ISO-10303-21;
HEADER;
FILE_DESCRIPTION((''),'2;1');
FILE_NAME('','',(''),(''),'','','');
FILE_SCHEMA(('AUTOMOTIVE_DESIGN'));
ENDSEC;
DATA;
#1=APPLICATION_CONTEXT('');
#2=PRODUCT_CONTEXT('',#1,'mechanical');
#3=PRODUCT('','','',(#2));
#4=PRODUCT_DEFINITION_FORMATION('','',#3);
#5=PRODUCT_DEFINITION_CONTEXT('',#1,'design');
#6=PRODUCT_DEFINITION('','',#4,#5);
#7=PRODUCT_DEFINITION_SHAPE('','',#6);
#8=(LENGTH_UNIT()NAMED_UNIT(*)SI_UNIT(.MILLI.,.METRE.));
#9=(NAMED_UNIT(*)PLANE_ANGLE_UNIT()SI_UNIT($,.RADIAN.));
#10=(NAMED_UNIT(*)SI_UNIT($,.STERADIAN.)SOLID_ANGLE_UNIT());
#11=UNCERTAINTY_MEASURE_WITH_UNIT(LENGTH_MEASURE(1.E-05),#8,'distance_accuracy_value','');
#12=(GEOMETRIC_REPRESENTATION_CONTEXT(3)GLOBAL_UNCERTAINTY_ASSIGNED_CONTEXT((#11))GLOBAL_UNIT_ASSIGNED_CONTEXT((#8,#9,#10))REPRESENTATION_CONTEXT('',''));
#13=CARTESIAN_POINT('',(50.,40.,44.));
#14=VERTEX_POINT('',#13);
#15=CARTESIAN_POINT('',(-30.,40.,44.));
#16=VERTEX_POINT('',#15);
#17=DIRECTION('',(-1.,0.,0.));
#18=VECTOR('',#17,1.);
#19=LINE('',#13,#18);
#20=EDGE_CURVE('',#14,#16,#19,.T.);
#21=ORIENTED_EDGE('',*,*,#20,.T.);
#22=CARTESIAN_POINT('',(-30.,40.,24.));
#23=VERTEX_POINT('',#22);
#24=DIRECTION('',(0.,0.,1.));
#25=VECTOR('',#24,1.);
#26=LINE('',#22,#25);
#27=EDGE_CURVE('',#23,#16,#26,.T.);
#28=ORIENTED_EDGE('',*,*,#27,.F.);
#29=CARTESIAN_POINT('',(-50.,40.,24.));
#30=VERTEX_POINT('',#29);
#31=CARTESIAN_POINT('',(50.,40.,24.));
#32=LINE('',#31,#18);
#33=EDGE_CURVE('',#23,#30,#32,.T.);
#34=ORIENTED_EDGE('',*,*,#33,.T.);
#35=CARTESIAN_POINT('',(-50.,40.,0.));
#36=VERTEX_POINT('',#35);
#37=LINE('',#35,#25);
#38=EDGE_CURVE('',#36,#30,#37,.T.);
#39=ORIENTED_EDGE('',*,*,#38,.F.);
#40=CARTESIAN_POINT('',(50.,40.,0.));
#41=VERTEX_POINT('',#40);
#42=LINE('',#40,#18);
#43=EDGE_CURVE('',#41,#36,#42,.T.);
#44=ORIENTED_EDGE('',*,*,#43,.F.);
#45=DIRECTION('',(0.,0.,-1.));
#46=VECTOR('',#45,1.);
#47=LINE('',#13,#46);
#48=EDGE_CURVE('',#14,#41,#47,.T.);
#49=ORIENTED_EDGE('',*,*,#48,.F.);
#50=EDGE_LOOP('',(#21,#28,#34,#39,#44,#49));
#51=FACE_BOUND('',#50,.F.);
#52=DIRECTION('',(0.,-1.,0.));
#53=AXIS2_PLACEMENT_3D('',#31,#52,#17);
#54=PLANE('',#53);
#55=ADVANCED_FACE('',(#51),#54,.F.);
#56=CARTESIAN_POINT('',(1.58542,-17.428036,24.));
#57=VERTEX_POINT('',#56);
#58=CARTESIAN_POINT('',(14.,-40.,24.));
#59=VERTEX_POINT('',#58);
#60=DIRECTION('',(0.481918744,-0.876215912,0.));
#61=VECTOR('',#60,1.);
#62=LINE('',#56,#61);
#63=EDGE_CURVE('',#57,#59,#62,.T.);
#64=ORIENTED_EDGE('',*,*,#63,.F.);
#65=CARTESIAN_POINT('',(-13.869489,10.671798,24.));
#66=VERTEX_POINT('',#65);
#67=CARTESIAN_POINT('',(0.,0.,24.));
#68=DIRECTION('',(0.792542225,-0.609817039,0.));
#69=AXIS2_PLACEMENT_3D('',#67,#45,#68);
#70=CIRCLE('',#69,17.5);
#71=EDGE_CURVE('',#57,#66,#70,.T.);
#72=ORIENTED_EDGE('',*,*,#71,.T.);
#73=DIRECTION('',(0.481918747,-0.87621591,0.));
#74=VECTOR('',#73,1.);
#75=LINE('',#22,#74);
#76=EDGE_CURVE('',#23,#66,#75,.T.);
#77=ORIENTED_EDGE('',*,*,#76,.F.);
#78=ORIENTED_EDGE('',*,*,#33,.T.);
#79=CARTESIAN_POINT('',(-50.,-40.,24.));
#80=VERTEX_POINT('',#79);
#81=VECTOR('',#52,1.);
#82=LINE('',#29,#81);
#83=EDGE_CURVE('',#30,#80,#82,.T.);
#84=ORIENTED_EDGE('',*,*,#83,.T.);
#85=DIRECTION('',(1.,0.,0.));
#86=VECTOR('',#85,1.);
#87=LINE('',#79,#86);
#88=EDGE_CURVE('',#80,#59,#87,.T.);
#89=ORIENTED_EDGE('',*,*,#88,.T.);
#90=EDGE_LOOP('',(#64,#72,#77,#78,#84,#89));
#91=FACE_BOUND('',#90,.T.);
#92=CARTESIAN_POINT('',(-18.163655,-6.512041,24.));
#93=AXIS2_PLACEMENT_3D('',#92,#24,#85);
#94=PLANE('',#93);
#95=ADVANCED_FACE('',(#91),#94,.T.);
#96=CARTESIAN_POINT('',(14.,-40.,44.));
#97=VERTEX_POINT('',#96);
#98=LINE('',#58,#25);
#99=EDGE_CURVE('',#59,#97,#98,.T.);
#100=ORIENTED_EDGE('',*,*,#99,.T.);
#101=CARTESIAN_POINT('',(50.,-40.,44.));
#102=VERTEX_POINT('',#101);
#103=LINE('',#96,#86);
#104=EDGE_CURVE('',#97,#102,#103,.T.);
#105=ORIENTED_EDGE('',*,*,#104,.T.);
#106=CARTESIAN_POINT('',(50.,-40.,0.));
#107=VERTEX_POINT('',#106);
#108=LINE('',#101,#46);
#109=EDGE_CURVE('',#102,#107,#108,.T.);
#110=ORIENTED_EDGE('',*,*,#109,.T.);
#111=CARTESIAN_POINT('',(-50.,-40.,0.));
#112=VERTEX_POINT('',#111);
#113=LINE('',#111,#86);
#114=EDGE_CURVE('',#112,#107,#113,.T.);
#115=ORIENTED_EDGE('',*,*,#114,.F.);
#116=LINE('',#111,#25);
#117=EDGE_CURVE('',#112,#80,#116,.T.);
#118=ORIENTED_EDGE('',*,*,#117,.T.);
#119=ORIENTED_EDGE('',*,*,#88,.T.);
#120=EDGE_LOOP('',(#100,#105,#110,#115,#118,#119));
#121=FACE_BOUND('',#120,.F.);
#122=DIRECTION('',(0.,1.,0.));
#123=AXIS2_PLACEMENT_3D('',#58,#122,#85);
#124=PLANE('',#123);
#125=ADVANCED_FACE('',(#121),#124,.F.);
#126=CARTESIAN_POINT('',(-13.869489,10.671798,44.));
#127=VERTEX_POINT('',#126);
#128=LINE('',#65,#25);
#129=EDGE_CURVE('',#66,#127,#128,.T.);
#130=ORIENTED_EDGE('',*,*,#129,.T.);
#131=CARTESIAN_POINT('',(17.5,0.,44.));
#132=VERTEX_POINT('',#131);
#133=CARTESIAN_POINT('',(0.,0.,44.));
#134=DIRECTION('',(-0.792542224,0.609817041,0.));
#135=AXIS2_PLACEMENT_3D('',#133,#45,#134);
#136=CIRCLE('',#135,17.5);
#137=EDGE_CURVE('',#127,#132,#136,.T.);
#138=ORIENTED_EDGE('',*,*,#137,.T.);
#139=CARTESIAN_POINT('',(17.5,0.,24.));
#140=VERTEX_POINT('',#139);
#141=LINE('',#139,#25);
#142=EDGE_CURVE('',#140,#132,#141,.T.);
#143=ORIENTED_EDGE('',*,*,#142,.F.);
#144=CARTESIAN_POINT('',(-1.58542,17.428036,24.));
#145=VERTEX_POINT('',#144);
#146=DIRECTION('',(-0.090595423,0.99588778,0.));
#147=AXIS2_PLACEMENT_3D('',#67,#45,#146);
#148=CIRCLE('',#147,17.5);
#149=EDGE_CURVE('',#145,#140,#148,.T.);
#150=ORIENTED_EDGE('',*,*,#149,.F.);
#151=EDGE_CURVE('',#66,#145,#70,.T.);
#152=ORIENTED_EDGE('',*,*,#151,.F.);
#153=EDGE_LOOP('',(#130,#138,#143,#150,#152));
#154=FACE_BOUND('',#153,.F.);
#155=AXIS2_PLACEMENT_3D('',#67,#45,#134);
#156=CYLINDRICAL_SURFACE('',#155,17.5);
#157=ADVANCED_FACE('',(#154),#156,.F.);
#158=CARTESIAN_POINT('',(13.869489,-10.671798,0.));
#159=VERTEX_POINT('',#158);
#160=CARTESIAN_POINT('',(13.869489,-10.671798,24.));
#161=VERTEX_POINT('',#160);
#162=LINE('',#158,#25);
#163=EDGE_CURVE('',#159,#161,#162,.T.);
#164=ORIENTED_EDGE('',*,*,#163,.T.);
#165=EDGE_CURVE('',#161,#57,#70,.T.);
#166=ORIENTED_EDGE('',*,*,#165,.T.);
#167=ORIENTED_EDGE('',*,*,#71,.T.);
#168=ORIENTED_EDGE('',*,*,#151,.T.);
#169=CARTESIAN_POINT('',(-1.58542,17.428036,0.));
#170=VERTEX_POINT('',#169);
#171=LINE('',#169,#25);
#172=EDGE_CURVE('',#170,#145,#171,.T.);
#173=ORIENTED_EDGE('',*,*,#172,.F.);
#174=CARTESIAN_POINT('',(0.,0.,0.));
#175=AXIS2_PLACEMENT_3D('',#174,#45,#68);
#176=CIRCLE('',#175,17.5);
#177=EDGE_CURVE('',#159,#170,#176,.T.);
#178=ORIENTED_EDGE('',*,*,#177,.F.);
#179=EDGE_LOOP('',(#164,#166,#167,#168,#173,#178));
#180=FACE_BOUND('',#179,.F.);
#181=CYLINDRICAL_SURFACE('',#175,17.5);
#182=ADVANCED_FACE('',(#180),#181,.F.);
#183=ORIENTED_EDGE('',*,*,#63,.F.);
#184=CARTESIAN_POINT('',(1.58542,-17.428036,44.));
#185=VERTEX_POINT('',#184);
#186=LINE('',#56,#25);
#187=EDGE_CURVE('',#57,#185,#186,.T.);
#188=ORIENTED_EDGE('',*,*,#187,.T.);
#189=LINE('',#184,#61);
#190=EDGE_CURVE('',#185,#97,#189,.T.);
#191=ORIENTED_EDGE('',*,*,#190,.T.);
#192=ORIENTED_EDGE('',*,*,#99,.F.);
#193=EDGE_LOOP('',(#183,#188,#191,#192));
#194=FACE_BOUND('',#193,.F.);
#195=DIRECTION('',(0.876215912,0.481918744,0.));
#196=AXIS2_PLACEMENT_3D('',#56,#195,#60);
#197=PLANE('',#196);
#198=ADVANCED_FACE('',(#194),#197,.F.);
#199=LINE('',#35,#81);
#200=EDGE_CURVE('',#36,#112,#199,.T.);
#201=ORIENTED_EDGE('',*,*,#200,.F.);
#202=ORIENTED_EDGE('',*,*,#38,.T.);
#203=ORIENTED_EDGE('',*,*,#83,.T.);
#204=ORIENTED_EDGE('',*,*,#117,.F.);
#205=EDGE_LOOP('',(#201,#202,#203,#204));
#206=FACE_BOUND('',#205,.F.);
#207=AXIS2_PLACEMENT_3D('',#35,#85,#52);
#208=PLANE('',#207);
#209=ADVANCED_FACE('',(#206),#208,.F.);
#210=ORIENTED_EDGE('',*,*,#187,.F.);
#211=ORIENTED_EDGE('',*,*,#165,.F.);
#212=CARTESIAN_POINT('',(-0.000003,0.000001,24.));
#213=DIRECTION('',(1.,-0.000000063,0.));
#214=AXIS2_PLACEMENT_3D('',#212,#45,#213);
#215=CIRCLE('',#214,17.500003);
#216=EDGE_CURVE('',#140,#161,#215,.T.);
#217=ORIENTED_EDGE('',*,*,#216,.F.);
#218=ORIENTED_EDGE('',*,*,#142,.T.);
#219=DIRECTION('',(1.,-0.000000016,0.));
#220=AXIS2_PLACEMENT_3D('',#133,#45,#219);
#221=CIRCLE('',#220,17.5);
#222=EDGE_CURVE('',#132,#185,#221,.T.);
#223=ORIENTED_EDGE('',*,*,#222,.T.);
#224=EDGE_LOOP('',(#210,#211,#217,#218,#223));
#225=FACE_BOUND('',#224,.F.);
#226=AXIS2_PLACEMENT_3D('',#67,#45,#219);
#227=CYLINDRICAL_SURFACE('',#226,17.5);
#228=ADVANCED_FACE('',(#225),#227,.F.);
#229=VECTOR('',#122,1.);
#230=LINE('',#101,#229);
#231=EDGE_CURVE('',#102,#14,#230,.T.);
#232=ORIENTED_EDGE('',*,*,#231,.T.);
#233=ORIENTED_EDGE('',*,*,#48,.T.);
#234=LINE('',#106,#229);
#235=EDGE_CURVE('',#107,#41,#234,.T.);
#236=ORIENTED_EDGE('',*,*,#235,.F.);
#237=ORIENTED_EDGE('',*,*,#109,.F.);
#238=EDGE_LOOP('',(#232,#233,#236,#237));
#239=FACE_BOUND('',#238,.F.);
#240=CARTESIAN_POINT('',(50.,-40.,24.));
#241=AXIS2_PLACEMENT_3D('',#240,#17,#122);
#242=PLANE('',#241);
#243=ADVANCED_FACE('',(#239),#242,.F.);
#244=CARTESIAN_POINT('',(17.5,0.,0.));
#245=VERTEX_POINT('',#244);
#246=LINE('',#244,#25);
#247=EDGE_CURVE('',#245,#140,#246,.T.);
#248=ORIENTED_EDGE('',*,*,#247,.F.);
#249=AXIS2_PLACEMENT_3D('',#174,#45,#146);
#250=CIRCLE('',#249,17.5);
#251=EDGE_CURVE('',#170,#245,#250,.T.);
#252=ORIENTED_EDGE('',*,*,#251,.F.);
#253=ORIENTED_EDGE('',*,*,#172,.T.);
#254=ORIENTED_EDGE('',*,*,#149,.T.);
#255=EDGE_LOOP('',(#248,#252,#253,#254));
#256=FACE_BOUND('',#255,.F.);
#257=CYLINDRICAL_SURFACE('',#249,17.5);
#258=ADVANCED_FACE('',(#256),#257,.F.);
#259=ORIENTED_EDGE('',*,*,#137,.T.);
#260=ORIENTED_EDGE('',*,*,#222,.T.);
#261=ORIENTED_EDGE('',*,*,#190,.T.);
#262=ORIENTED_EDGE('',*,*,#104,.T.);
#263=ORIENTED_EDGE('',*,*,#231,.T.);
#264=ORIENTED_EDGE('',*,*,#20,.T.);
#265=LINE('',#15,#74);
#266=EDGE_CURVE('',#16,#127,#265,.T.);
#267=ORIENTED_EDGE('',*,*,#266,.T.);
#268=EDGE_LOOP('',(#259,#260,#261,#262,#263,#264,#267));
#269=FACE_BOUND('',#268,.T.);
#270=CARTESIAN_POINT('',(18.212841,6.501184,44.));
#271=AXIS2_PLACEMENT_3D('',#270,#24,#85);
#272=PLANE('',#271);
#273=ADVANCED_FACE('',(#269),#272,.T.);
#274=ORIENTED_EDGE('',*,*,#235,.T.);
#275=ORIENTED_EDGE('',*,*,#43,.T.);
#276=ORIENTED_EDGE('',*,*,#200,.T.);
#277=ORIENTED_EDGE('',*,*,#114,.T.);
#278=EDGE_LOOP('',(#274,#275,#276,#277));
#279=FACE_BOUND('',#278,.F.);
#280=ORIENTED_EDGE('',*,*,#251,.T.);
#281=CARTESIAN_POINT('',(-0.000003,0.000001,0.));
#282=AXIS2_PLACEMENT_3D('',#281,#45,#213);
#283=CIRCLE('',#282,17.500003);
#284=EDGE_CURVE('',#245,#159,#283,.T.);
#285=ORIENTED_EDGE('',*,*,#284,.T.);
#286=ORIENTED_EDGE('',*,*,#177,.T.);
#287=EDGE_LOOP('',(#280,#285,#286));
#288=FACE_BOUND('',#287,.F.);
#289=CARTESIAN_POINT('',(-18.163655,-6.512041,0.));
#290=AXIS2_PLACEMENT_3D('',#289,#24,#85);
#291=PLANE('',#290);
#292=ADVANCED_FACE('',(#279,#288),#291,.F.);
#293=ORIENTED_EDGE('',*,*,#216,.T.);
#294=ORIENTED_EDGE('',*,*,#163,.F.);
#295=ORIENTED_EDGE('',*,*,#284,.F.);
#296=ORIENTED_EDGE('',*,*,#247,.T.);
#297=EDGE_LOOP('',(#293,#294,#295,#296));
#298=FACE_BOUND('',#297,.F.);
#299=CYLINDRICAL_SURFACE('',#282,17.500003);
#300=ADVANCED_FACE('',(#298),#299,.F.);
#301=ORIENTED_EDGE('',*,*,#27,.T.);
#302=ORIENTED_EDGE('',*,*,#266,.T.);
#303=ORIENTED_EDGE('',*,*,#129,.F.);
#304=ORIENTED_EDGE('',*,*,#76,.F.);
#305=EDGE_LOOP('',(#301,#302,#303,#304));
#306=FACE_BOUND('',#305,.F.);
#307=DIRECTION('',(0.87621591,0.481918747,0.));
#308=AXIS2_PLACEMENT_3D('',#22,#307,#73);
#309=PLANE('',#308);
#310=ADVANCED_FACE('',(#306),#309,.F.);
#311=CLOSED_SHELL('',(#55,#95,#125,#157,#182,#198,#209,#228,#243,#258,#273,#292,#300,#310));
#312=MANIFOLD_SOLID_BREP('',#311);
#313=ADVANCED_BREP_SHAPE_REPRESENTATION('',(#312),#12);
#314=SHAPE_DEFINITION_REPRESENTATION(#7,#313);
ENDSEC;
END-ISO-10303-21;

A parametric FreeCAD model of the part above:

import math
import FreeCAD as App
import Part
import Sketcher

doc = App.newDocument("Part")
body = doc.addObject("PartDesign::Body", "Body")

sketch1 = doc.addObject("Sketcher::SketchObject", "Sketch")
body.addObject(sketch1)
sketch1.AttachmentSupport = (doc.XY_Plane, [""])
sketch1.MapMode = "FlatFace"
sketch1.addGeometry([
    Part.LineSegment(App.Vector(-50, 40, 0), App.Vector(-50, -40, 0)),
    Part.LineSegment(App.Vector(-50, -40, 0), App.Vector(50, -40, 0)),
    Part.LineSegment(App.Vector(50, -40, 0), App.Vector(50, 40, 0)),
    Part.LineSegment(App.Vector(50, 40, 0), App.Vector(-50, 40, 0)),
    Part.ArcOfCircle(Part.Circle(App.Vector(0, 0, 0), App.Vector(0, 0, 1), 17), math.radians(95), math.radians(322)),
    Part.ArcOfCircle(Part.Circle(App.Vector(0, 0, 0), App.Vector(0, 0, 1), 18), math.radians(0), math.radians(95)),
    Part.ArcOfCircle(Part.Circle(App.Vector(0, 0, 0), App.Vector(0, 0, 1), 18), math.radians(-38), math.radians(0)),
], False)
sketch1.addConstraint([
    Sketcher.Constraint("Coincident", 0, 2, 1, 1),
    Sketcher.Constraint("Coincident", 1, 2, 2, 1),
    Sketcher.Constraint("Coincident", 2, 2, 3, 1),
    Sketcher.Constraint("Coincident", 3, 2, 0, 1),
    Sketcher.Constraint("Tangent", 4, 1, 5, 2),
    Sketcher.Constraint("Tangent", 5, 1, 6, 2),
    Sketcher.Constraint("Tangent", 6, 1, 4, 2),
    Sketcher.Constraint("Vertical", 0),
    Sketcher.Constraint("Horizontal", 1),
    Sketcher.Constraint("Vertical", 2),
    Sketcher.Constraint("Horizontal", 3),
    Sketcher.Constraint("Coincident", 4, 3, -1, 1),
    Sketcher.Constraint("Symmetric", 0, 2, 2, 2, -1, 1),
    Sketcher.Constraint("PointOnObject", 5, 1, -1),
    Sketcher.Constraint("Radius", 4, 17.5),
    Sketcher.Constraint("DistanceX", 1, 1, 1, 2, 100.0),
    Sketcher.Constraint("DistanceY", 0, 2, 0, 1, 80.0),
    Sketcher.Constraint("DistanceY", 6, 1, -1, 1, 10.671798),
    Sketcher.Constraint("DistanceX", 4, 1, -1, 1, 1.58542),
])
pad1 = doc.addObject("PartDesign::Pad", "Pad")
body.addObject(pad1)
pad1.Profile = sketch1
pad1.Length = 24

sketch2 = doc.addObject("Sketcher::SketchObject", "Sketch001")
body.addObject(sketch2)
sketch2.AttachmentSupport = (doc.XY_Plane, [""])
sketch2.MapMode = "FlatFace"
sketch2.AttachmentOffset = App.Placement(App.Vector(0, 0, 24), App.Rotation())
sketch2.addGeometry([
    Part.LineSegment(App.Vector(50, 40, 0), App.Vector(-30, 40, 0)),
    Part.LineSegment(App.Vector(-30, 40, 0), App.Vector(-14, 11, 0)),
    Part.ArcOfCircle(Part.Circle(App.Vector(0, 0, 0), App.Vector(0, 0, 1), 18), math.radians(0), math.radians(142)),
    Part.ArcOfCircle(Part.Circle(App.Vector(0, 0, 0), App.Vector(0, 0, 1), 18), math.radians(-85), math.radians(0)),
    Part.LineSegment(App.Vector(2, -17, 0), App.Vector(14, -40, 0)),
    Part.LineSegment(App.Vector(14, -40, 0), App.Vector(50, -40, 0)),
    Part.LineSegment(App.Vector(50, -40, 0), App.Vector(50, 40, 0)),
], False)
sketch2.addConstraint([
    Sketcher.Constraint("Coincident", 0, 2, 1, 1),
    Sketcher.Constraint("Coincident", 1, 2, 2, 2),
    Sketcher.Constraint("Tangent", 2, 1, 3, 2),
    Sketcher.Constraint("Coincident", 3, 1, 4, 1),
    Sketcher.Constraint("Coincident", 4, 2, 5, 1),
    Sketcher.Constraint("Coincident", 5, 2, 6, 1),
    Sketcher.Constraint("Coincident", 6, 2, 0, 1),
    Sketcher.Constraint("Horizontal", 0),
    Sketcher.Constraint("Horizontal", 5),
    Sketcher.Constraint("Vertical", 6),
    Sketcher.Constraint("Coincident", 2, 3, -1, 1),
    Sketcher.Constraint("Equal", 2, 3),
    Sketcher.Constraint("PointOnObject", 2, 1, -1),
    Sketcher.Constraint("Parallel", 1, 4),
    Sketcher.Constraint("Equal", 0, 6),
    Sketcher.Constraint("Radius", 2, 17.5),
    Sketcher.Constraint("DistanceX", 0, 2, 0, 1, 80.0),
    Sketcher.Constraint("DistanceX", 5, 1, 5, 2, 36.0),
    Sketcher.Constraint("DistanceX", 0, 2, -1, 1, 30.0),
    Sketcher.Constraint("DistanceY", -1, 1, 0, 2, 40.0),
    Sketcher.Constraint("DistanceY", -1, 1, 1, 2, 10.671798),
])
pad2 = doc.addObject("PartDesign::Pad", "Pad001")
body.addObject(pad2)
pad2.Profile = sketch2
pad2.Length = 20

doc.recompute()
